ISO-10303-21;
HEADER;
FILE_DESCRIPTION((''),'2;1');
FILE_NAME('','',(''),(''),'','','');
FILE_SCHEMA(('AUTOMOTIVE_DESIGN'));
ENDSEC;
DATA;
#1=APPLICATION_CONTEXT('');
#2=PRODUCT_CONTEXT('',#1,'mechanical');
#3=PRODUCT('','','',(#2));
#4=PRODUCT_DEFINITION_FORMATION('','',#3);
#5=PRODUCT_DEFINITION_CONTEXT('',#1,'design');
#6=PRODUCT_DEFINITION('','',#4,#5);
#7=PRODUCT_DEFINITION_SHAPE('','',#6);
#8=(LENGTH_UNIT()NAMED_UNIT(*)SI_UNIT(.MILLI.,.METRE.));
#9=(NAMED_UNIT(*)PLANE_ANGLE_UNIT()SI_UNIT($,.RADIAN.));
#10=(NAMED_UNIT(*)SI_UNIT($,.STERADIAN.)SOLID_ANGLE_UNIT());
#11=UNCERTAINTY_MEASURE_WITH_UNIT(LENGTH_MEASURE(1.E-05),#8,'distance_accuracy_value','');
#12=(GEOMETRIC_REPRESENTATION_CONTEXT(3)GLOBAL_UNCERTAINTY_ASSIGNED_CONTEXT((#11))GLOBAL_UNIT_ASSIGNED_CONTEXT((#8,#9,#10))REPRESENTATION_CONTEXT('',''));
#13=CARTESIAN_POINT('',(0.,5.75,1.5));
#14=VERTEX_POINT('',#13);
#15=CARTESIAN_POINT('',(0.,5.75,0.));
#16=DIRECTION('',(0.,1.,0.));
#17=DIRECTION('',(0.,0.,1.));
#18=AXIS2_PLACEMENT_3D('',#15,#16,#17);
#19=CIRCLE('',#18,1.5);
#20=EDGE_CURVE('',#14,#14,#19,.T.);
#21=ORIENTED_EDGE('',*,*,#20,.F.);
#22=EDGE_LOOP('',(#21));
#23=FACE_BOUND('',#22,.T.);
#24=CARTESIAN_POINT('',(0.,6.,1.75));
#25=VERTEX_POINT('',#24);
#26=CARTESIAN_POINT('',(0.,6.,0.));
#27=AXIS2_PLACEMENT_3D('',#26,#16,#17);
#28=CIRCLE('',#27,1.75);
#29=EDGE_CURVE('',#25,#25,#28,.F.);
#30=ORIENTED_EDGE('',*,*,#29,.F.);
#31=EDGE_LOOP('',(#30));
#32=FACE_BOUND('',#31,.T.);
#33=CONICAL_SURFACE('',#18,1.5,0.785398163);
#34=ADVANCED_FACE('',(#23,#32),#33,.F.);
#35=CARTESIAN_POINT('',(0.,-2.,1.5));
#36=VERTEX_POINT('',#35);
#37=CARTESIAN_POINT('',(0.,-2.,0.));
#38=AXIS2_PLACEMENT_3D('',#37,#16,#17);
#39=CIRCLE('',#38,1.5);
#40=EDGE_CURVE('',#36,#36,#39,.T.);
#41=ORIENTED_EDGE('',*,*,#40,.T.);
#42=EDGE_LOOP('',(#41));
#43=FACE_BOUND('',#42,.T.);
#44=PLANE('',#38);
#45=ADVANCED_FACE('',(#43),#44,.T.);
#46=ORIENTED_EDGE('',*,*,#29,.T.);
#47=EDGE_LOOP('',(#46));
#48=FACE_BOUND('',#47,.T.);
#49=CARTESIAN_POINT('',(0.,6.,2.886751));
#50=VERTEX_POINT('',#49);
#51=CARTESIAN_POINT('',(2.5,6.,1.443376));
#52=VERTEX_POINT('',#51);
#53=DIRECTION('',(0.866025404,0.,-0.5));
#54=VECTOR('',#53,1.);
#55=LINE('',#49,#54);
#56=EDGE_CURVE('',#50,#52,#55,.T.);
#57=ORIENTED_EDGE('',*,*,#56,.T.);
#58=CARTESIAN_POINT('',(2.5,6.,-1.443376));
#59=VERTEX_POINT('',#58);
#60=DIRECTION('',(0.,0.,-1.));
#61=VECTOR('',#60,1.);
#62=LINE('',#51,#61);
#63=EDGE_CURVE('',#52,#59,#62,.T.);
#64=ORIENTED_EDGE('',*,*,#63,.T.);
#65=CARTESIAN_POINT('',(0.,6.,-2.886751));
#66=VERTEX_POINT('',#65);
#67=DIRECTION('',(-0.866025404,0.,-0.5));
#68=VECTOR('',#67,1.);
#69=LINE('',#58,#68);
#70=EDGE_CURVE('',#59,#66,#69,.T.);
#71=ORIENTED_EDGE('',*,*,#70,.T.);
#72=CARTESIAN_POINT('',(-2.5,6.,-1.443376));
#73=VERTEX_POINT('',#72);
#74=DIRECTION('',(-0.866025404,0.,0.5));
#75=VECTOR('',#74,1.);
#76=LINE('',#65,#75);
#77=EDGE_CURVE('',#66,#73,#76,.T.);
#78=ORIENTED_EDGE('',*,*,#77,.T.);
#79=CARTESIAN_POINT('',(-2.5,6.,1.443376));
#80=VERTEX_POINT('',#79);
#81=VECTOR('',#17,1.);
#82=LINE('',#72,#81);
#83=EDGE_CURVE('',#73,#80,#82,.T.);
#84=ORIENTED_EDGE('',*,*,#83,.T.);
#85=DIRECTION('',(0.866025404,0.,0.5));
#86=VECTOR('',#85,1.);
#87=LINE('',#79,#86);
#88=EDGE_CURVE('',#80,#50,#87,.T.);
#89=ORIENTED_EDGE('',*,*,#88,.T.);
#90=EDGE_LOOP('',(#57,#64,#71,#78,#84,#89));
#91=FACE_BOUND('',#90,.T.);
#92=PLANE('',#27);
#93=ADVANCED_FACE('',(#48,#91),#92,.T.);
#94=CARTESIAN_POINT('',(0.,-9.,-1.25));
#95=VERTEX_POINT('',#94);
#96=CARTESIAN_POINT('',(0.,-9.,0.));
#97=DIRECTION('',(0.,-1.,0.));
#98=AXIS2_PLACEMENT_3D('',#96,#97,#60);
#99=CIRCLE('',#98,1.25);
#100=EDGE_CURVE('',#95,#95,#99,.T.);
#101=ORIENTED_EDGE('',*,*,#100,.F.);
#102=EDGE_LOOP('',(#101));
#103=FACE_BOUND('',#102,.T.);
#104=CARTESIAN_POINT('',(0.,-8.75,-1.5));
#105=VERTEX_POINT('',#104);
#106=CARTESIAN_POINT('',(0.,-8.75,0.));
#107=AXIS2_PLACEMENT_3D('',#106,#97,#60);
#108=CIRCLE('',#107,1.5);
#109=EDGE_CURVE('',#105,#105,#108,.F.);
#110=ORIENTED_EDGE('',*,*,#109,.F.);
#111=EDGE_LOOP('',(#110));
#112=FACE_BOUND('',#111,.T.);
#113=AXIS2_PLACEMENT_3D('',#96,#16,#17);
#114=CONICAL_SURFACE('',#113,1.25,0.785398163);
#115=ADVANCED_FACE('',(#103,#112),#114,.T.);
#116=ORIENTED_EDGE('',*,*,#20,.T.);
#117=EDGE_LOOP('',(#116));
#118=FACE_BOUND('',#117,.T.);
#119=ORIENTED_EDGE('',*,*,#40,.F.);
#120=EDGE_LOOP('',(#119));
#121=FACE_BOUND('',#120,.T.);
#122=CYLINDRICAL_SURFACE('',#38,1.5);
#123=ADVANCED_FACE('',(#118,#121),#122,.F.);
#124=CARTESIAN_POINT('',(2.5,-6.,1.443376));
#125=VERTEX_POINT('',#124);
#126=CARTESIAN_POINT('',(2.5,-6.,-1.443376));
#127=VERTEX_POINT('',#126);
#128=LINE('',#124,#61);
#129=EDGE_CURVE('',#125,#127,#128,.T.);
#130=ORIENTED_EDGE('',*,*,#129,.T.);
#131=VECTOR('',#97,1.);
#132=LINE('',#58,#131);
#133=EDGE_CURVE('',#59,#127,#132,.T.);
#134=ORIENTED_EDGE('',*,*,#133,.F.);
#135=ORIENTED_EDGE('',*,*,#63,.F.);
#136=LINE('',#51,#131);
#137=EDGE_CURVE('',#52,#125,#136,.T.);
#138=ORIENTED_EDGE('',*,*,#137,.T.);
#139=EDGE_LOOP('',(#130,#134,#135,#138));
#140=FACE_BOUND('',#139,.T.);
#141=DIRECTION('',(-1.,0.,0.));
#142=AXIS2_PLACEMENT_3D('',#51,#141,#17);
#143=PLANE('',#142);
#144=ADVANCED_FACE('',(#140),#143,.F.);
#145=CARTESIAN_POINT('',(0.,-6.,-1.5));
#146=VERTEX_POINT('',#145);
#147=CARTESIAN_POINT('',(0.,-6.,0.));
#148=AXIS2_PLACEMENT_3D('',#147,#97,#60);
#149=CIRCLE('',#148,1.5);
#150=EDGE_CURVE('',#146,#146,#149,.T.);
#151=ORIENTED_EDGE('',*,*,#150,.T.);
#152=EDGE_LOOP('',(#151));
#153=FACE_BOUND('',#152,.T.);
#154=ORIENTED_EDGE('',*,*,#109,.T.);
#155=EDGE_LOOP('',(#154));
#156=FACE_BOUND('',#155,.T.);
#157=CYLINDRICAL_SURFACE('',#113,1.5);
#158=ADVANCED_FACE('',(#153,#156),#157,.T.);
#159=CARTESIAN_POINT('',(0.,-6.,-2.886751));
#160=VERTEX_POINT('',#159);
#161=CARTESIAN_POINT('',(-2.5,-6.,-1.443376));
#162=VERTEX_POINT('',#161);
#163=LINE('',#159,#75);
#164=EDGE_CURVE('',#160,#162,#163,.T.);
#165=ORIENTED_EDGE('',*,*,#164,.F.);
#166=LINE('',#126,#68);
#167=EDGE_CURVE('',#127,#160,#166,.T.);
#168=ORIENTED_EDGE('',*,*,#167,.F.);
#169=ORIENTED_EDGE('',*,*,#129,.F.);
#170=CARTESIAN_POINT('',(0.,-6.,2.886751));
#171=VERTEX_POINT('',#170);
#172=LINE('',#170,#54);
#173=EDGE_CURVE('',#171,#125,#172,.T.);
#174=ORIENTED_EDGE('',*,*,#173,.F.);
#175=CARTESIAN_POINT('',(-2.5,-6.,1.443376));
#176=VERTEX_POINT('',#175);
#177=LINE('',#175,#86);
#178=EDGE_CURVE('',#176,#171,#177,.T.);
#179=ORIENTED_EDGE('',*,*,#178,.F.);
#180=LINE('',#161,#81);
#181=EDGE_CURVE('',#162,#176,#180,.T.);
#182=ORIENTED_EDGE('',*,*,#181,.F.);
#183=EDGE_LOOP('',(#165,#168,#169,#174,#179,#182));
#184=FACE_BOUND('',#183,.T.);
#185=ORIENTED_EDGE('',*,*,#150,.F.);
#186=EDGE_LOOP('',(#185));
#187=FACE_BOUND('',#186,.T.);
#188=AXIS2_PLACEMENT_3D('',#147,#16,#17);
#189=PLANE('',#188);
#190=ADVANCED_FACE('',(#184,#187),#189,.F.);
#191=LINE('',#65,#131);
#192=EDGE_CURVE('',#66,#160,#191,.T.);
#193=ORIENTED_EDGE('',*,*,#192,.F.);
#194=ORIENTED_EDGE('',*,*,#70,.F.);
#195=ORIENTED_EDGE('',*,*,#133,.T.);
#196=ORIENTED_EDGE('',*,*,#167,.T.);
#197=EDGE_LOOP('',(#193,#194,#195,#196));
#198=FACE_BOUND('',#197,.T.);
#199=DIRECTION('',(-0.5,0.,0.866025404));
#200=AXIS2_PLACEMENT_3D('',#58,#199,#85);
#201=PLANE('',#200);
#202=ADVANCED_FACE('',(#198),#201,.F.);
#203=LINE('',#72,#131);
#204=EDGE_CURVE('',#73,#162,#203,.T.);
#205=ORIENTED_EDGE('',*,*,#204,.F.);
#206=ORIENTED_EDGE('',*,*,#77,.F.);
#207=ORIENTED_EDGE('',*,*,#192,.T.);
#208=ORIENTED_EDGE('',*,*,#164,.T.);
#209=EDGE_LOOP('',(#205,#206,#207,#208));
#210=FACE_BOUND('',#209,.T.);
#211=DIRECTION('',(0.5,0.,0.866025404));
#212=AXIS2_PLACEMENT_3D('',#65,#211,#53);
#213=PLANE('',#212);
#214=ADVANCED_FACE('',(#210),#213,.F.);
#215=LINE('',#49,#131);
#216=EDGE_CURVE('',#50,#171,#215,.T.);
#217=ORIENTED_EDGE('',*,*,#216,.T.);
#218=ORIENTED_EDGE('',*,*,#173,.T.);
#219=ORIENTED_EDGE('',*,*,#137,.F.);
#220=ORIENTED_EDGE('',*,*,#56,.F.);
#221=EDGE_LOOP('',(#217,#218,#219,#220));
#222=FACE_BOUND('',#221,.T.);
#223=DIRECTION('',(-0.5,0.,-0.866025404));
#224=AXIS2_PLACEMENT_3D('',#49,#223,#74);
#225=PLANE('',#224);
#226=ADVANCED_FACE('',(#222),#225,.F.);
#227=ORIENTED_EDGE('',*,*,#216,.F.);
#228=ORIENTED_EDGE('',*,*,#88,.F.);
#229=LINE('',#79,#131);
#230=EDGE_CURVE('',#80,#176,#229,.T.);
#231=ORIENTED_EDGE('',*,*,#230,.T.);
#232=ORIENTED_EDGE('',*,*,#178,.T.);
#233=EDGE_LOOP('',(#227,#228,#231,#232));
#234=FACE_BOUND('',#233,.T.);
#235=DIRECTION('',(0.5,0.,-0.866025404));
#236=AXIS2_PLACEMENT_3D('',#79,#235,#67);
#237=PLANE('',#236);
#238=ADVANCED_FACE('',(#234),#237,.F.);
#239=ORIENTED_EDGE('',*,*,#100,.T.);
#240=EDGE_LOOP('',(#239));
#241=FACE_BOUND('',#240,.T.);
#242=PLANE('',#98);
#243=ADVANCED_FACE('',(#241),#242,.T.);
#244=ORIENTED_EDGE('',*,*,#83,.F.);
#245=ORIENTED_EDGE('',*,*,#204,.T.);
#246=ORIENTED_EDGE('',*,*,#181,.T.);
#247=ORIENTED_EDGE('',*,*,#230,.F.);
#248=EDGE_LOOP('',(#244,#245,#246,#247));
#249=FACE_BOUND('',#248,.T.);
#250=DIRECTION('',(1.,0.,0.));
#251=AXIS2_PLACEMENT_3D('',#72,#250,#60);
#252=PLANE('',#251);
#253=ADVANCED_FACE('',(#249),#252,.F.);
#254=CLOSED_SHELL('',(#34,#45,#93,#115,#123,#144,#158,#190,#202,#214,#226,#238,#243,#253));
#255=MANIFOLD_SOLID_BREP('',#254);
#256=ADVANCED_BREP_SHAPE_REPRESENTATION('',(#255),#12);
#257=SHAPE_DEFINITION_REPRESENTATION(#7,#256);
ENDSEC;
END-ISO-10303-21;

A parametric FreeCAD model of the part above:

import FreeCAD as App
import Part
import Sketcher
Q = App.Units.Quantity


def edges_at(feature, points):
    """Names of the edges that pass closest to the given points."""
    edges = feature.Shape.Edges
    near = lambda p: min(range(len(edges)), key=lambda i: edges[i].distToShape(Part.Vertex(*p))[0])
    return sorted({f"Edge{near(p) + 1}" for p in points})

doc = App.newDocument("Part")
body = doc.addObject("PartDesign::Body", "Body")

# Sketch on XZ plane
sketch1 = body.newObject("Sketcher::SketchObject", "Sketch")
sketch1.AttachmentSupport = (doc.getObject("XZ_Plane"), [""])
sketch1.MapMode = "FlatFace"
sketch1.addGeometry([
    Part.LineSegment(App.Vector(0, -2.9, 0), App.Vector(-2.5, -1.4, 0)),  # 0
    Part.LineSegment(App.Vector(-2.5, -1.4, 0), App.Vector(-2.5, 1.4, 0)),  # 1
    Part.LineSegment(App.Vector(-2.5, 1.4, 0), App.Vector(0, 2.9, 0)),  # 2
    Part.LineSegment(App.Vector(0, 2.9, 0), App.Vector(2.5, 1.4, 0)),  # 3
    Part.LineSegment(App.Vector(2.5, 1.4, 0), App.Vector(2.5, -1.4, 0)),  # 4
    Part.LineSegment(App.Vector(2.5, -1.4, 0), App.Vector(0, -2.9, 0)),  # 5
], False)
sketch1.addConstraint([
    Sketcher.Constraint("Coincident", 0, 2, 1, 1),
    Sketcher.Constraint("Coincident", 1, 2, 2, 1),
    Sketcher.Constraint("Coincident", 2, 2, 3, 1),
    Sketcher.Constraint("Coincident", 3, 2, 4, 1),
    Sketcher.Constraint("Coincident", 4, 2, 5, 1),
    Sketcher.Constraint("Coincident", 5, 2, 0, 1),
    Sketcher.Constraint("Vertical", 1),
    Sketcher.Constraint("Vertical", 4),
    Sketcher.Constraint("Symmetric", 0, 2, 3, 2, -1, 1),
    Sketcher.Constraint("Symmetric", 2, 2, 5, 2, -1, 1),
    Sketcher.Constraint("PointOnObject", 2, 2, -2),
    Sketcher.Constraint("Parallel", 2, 5),
    Sketcher.Constraint("Horizontal", 1, 2, 3, 2),
    Sketcher.Constraint("Angle", 0, Q("150 deg")),
    Sketcher.Constraint("DistanceX", 1, 2, 3, 2, 5.0),
    Sketcher.Constraint("DistanceY", 1, 1, 1, 2, 2.886751),
])
pad1 = body.newObject("PartDesign::Pad", "Pad")
pad1.Profile = sketch1
pad1.Length = 12
pad1.Midplane = True

# Sketch on XZ plane
sketch2 = body.newObject("Sketcher::SketchObject", "Sketch001")
sketch2.AttachmentSupport = (doc.getObject("XZ_Plane"), [""])
sketch2.MapMode = "FlatFace"
sketch2.AttachmentOffset = App.Placement(App.Vector(0, 0, -6), App.Rotation())
sketch2.addGeometry(Part.Circle(App.Vector(0, 0, 0), App.Vector(0, 0, 1), 1.5), False)
sketch2.addConstraint([
    Sketcher.Constraint("Coincident", 0, 3, -1, 1),
    Sketcher.Constraint("Diameter", 0, 3.0),
])
pocket1 = body.newObject("PartDesign::Pocket", "Pocket")
pocket1.Profile = sketch2
pocket1.Length = 8
pocket1.Reversed = True

# Sketch on XZ plane
sketch3 = body.newObject("Sketcher::SketchObject", "Sketch002")
sketch3.AttachmentSupport = (doc.getObject("XZ_Plane"), [""])
sketch3.MapMode = "FlatFace"
sketch3.AttachmentOffset = App.Placement(App.Vector(0, 0, 6), App.Rotation())
sketch3.addGeometry(Part.Circle(App.Vector(0, 0, 0), App.Vector(0, 0, 1), 1.5), False)
sketch3.addConstraint([
    Sketcher.Constraint("Coincident", 0, 3, -1, 1),
    Sketcher.Constraint("Diameter", 0, 3.0),
])
pad2 = body.newObject("PartDesign::Pad", "Pad001")
pad2.Profile = sketch3
pad2.Length = 3
doc.recompute()

chamfer = body.newObject("PartDesign::Chamfer", "Chamfer")
chamfer.Base = (pad2, edges_at(pad2, [(0, 6, -1.5), (0, -9, -1.5)]))
chamfer.Size = 0.25

doc.recompute()
